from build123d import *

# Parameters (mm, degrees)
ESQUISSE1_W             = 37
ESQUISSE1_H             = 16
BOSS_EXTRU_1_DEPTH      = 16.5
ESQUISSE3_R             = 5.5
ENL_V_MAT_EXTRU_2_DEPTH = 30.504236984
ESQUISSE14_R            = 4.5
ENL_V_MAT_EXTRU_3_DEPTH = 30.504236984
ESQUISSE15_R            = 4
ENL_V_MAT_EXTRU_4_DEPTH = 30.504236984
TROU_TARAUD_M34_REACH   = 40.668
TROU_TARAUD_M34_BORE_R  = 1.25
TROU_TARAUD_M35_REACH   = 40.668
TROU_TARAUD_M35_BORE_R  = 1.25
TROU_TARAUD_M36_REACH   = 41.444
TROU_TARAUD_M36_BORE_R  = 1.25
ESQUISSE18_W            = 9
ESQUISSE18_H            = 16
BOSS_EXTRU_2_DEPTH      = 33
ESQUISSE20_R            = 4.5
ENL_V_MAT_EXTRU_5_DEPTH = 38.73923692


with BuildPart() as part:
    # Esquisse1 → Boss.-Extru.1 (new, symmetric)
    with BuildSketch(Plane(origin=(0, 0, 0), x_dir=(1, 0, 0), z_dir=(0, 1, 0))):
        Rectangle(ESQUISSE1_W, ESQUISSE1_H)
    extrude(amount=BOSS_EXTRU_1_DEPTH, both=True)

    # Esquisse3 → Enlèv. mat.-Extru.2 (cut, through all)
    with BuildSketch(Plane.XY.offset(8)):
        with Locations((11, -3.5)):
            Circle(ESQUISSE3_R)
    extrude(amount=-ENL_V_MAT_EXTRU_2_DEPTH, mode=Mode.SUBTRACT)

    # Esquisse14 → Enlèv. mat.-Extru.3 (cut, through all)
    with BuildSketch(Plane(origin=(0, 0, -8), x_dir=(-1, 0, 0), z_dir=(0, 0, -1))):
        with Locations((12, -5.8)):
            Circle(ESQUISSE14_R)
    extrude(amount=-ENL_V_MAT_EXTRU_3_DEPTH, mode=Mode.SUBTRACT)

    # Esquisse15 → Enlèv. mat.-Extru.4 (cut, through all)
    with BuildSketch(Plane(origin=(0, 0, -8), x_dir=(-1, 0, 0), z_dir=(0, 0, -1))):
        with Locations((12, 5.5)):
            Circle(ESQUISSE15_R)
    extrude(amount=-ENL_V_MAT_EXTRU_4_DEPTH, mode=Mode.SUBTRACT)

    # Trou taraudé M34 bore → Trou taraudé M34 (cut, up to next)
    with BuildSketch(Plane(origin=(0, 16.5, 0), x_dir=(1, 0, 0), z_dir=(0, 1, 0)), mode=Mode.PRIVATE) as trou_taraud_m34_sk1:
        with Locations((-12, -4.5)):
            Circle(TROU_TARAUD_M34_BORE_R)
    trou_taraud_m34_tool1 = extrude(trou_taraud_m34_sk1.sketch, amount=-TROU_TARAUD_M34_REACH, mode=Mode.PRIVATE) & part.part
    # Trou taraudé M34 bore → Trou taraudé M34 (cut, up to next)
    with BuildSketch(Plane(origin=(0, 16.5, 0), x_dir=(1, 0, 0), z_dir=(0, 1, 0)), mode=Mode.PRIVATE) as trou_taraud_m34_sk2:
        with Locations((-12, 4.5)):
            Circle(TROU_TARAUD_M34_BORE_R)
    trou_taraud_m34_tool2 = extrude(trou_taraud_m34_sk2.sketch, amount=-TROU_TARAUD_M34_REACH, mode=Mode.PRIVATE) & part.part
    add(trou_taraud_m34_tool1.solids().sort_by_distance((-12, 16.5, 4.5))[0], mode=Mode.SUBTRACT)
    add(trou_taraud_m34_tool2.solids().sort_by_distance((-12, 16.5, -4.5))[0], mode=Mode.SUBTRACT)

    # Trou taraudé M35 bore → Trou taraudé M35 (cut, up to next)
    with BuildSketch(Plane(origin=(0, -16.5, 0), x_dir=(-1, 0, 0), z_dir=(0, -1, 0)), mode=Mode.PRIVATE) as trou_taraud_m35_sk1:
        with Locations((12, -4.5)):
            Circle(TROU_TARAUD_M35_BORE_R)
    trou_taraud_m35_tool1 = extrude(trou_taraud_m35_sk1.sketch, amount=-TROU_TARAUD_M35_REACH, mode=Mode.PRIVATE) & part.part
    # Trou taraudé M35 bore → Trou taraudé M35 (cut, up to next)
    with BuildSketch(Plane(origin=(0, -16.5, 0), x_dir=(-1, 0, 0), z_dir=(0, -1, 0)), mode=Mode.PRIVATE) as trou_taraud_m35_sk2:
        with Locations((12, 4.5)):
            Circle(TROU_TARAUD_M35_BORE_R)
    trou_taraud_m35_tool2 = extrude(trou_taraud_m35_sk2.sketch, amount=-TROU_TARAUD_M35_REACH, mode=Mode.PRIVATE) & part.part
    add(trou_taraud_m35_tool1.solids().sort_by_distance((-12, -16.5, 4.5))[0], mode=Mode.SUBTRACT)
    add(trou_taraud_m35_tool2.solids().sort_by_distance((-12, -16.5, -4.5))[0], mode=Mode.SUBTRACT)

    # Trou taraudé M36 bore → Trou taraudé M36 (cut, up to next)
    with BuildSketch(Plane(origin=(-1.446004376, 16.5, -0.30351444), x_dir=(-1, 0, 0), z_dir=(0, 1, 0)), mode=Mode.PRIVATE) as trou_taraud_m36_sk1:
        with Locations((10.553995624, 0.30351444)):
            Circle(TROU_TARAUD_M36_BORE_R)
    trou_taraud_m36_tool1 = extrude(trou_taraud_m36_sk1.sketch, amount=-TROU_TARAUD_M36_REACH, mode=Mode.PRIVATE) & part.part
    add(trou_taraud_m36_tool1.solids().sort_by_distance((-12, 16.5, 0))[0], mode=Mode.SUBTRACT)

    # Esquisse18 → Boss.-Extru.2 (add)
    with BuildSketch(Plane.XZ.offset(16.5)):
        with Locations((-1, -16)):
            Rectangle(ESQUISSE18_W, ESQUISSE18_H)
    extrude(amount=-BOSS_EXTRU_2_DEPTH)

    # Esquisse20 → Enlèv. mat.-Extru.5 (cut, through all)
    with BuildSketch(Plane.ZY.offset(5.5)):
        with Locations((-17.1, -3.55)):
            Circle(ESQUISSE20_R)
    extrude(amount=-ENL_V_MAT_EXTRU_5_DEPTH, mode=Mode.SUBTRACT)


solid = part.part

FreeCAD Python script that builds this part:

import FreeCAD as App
import Part
import Sketcher
Q = App.Units.Quantity

doc = App.newDocument("Part")
params = doc.addObject("Spreadsheet::Sheet", "Params")
for row, (alias, value) in enumerate([
    ("sketch1_width", "37 mm"),
    ("sketch1_height", "16 mm"),
    ("pad1_length", "33 mm"),
    ("sketch2_diameter", "11 mm"),
    ("sketch3_diameter", "9 mm"),
    ("sketch4_diameter", "8 mm"),
    ("sketch5_diameter", "2.5 mm"),
    ("sketch6_diameter", "2.5 mm"),
    ("sketch7_diameter", "2.5 mm"),
    ("sketch8_diameter", "2.5 mm"),
    ("pocket7_length", "6.377096 mm"),
    ("sketch9_diameter", "2.5 mm"),
    ("sketch10_width", "9 mm"),
    ("sketch10_height", "16 mm"),
    ("pad2_length", "33 mm"),
    ("sketch11_diameter", "9 mm"),
], start=1):
    params.set(f"A{row}", alias)
    params.set(f"B{row}", "=" + value)
    params.setAlias(f"B{row}", alias)

body = doc.addObject("PartDesign::Body", "Body")

sketch1 = body.newObject("Sketcher::SketchObject", "Sketch")
sketch1.AttachmentSupport = (doc.getObject("XZ_Plane"), [""])
sketch1.MapMode = "FlatFace"
sketch1.addGeometry([
    Part.LineSegment(App.Vector(-18, -8, 0), App.Vector(-18, 8, 0)),
    Part.LineSegment(App.Vector(-18, 8, 0), App.Vector(18, 8, 0)),
    Part.LineSegment(App.Vector(18, 8, 0), App.Vector(18, -8, 0)),
    Part.LineSegment(App.Vector(18, -8, 0), App.Vector(-18, -8, 0)),
], False)
sketch1.addConstraint([
    Sketcher.Constraint("Coincident", 0, 2, 1, 1),
    Sketcher.Constraint("Coincident", 1, 2, 2, 1),
    Sketcher.Constraint("Coincident", 2, 2, 3, 1),
    Sketcher.Constraint("Coincident", 3, 2, 0, 1),
    Sketcher.Constraint("Vertical", 0),
    Sketcher.Constraint("Horizontal", 1),
    Sketcher.Constraint("Vertical", 2),
    Sketcher.Constraint("Horizontal", 3),
    Sketcher.Constraint("Symmetric", 0, 2, 2, 2, -1, 1),
    Sketcher.Constraint("DistanceX", 1, 1, 1, 2, Q("37 mm")),
    Sketcher.Constraint("DistanceY", 0, 1, 0, 2, Q("16 mm")),
])
sketch1.setExpression("Constraints[9]", "Params.sketch1_width")
sketch1.setExpression("Constraints[10]", "Params.sketch1_height")
pad1 = body.newObject("PartDesign::Pad", "Pad")
pad1.Profile = sketch1
pad1.setExpression("Length", "Params.pad1_length")
pad1.Midplane = True

sketch2 = body.newObject("Sketcher::SketchObject", "Sketch001")
sketch2.AttachmentSupport = (doc.getObject("XY_Plane"), [""])
sketch2.MapMode = "FlatFace"
sketch2.AttachmentOffset = App.Placement(App.Vector(0, 0, 8), App.Rotation())
sketch2.addGeometry(Part.Circle(App.Vector(11, -4, 0), App.Vector(0, 0, 1), 6), False)
sketch2.addConstraint([
    Sketcher.Constraint("Diameter", 0, Q("11 mm")),
    Sketcher.Constraint("DistanceX", -1, 1, 0, 3, Q("11 mm")),
    Sketcher.Constraint("DistanceY", 0, 3, -1, 1, Q("3.5 mm")),
])
sketch2.setExpression("Constraints[0]", "Params.sketch2_diameter")
pocket1 = body.newObject("PartDesign::Pocket", "Pocket")
pocket1.Profile = sketch2
pocket1.Type = "ThroughAll"

sketch3 = body.newObject("Sketcher::SketchObject", "Sketch002")
sketch3.AttachmentSupport = (doc.getObject("XY_Plane"), [""])
sketch3.MapMode = "FlatFace"
sketch3.AttachmentOffset = App.Placement(App.Vector(0, 0, -8), App.Rotation())
sketch3.addGeometry(Part.Circle(App.Vector(-12, -5.8, 0), App.Vector(0, 0, 1), 4.5), False)
sketch3.addConstraint([
    Sketcher.Constraint("Diameter", 0, Q("9 mm")),
    Sketcher.Constraint("DistanceX", 0, 3, -1, 1, Q("12 mm")),
    Sketcher.Constraint("DistanceY", 0, 3, -1, 1, Q("5.8 mm")),
])
sketch3.setExpression("Constraints[0]", "Params.sketch3_diameter")
pocket2 = body.newObject("PartDesign::Pocket", "Pocket001")
pocket2.Profile = sketch3
pocket2.Type = "ThroughAll"
pocket2.Reversed = True

sketch4 = body.newObject("Sketcher::SketchObject", "Sketch003")
sketch4.AttachmentSupport = (doc.getObject("XY_Plane"), [""])
sketch4.MapMode = "FlatFace"
sketch4.AttachmentOffset = App.Placement(App.Vector(0, 0, -8), App.Rotation())
sketch4.addGeometry(Part.Circle(App.Vector(-12, 5.5, 0), App.Vector(0, 0, 1), 4), False)
sketch4.addConstraint([
    Sketcher.Constraint("Diameter", 0, Q("8 mm")),
    Sketcher.Constraint("DistanceX", 0, 3, -1, 1, Q("12 mm")),
    Sketcher.Constraint("DistanceY", -1, 1, 0, 3, Q("5.5 mm")),
])
sketch4.setExpression("Constraints[0]", "Params.sketch4_diameter")
pocket3 = body.newObject("PartDesign::Pocket", "Pocket002")
pocket3.Profile = sketch4
pocket3.Type = "ThroughAll"
pocket3.Reversed = True

sketch5 = body.newObject("Sketcher::SketchObject", "Sketch004")
sketch5.AttachmentSupport = (doc.getObject("XZ_Plane"), [""])
sketch5.MapMode = "FlatFace"
sketch5.AttachmentOffset = App.Placement(App.Vector(0, 0, -16.5), App.Rotation())
sketch5.addGeometry(Part.Circle(App.Vector(-12, 4.5, 0), App.Vector(0, 0, 1), 1.2), False)
sketch5.addConstraint([
    Sketcher.Constraint("Diameter", 0, Q("2.5 mm")),
    Sketcher.Constraint("DistanceX", 0, 3, -1, 1, Q("12 mm")),
    Sketcher.Constraint("DistanceY", -1, 1, 0, 3, Q("4.5 mm")),
])
sketch5.setExpression("Constraints[0]", "Params.sketch5_diameter")
pocket4 = body.newObject("PartDesign::Pocket", "Pocket003")
pocket4.Profile = sketch5
pocket4.Type = "UpToFirst"
pocket4.Reversed = True

sketch6 = body.newObject("Sketcher::SketchObject", "Sketch005")
sketch6.AttachmentSupport = (doc.getObject("XZ_Plane"), [""])
sketch6.MapMode = "FlatFace"
sketch6.AttachmentOffset = App.Placement(App.Vector(0, 0, -16.5), App.Rotation())
sketch6.addGeometry(Part.Circle(App.Vector(-12, -4.5, 0), App.Vector(0, 0, 1), 1.2), False)
sketch6.addConstraint([
    Sketcher.Constraint("Diameter", 0, Q("2.5 mm")),
    Sketcher.Constraint("DistanceX", 0, 3, -1, 1, Q("12 mm")),
    Sketcher.Constraint("DistanceY", 0, 3, -1, 1, Q("4.5 mm")),
])
sketch6.setExpression("Constraints[0]", "Params.sketch6_diameter")
pocket5 = body.newObject("PartDesign::Pocket", "Pocket004")
pocket5.Profile = sketch6
pocket5.Type = "UpToFirst"
pocket5.Reversed = True

sketch7 = body.newObject("Sketcher::SketchObject", "Sketch006")
sketch7.AttachmentSupport = (doc.getObject("XZ_Plane"), [""])
sketch7.MapMode = "FlatFace"
sketch7.AttachmentOffset = App.Placement(App.Vector(0, 0, 16.5), App.Rotation())
sketch7.addGeometry(Part.Circle(App.Vector(-12, 4.5, 0), App.Vector(0, 0, 1), 1.2), False)
sketch7.addConstraint([
    Sketcher.Constraint("Diameter", 0, Q("2.5 mm")),
    Sketcher.Constraint("DistanceX", 0, 3, -1, 1, Q("12 mm")),
    Sketcher.Constraint("DistanceY", -1, 1, 0, 3, Q("4.5 mm")),
])
sketch7.setExpression("Constraints[0]", "Params.sketch7_diameter")
pocket6 = body.newObject("PartDesign::Pocket", "Pocket005")
pocket6.Profile = sketch7
pocket6.Type = "UpToFirst"

sketch8 = body.newObject("Sketcher::SketchObject", "Sketch007")
sketch8.AttachmentSupport = (doc.getObject("XZ_Plane"), [""])
sketch8.MapMode = "FlatFace"
sketch8.AttachmentOffset = App.Placement(App.Vector(0, 0, 16.5), App.Rotation())
sketch8.addGeometry(Part.Circle(App.Vector(-12, -4.5, 0), App.Vector(0, 0, 1), 1.2), False)
sketch8.addConstraint([
    Sketcher.Constraint("Diameter", 0, Q("2.5 mm")),
    Sketcher.Constraint("DistanceX", 0, 3, -1, 1, Q("12 mm")),
    Sketcher.Constraint("DistanceY", 0, 3, -1, 1, Q("4.5 mm")),
])
sketch8.setExpression("Constraints[0]", "Params.sketch8_diameter")
pocket7 = body.newObject("PartDesign::Pocket", "Pocket006")
pocket7.Profile = sketch8
pocket7.setExpression("Length", "Params.pocket7_length")

sketch9 = body.newObject("Sketcher::SketchObject", "Sketch008")
sketch9.AttachmentSupport = (doc.getObject("XZ_Plane"), [""])
sketch9.MapMode = "FlatFace"
sketch9.AttachmentOffset = App.Placement(App.Vector(0, 0, -16.5), App.Rotation())
sketch9.addGeometry(Part.Circle(App.Vector(-12, 0, 0), App.Vector(0, 0, 1), 1.2), False)
sketch9.addConstraint([
    Sketcher.Constraint("PointOnObject", 0, 3, -1),
    Sketcher.Constraint("Diameter", 0, Q("2.5 mm")),
    Sketcher.Constraint("DistanceX", 0, 3, -1, 1, Q("12 mm")),
])
sketch9.setExpression("Constraints[1]", "Params.sketch9_diameter")
pocket8 = body.newObject("PartDesign::Pocket", "Pocket007")
pocket8.Profile = sketch9
pocket8.Type = "UpToFirst"
pocket8.Reversed = True

sketch10 = body.newObject("Sketcher::SketchObject", "Sketch009")
sketch10.AttachmentSupport = (doc.getObject("XZ_Plane"), [""])
sketch10.MapMode = "FlatFace"
sketch10.AttachmentOffset = App.Placement(App.Vector(0, 0, 16.5), App.Rotation())
sketch10.addGeometry([
    Part.LineSegment(App.Vector(-6, -8, 0), App.Vector(-6, -24, 0)),
    Part.LineSegment(App.Vector(-6, -24, 0), App.Vector(4, -24, 0)),
    Part.LineSegment(App.Vector(4, -24, 0), App.Vector(4, -8, 0)),
    Part.LineSegment(App.Vector(4, -8, 0), App.Vector(-6, -8, 0)),
], False)
sketch10.addConstraint([
    Sketcher.Constraint("Coincident", 0, 2, 1, 1),
    Sketcher.Constraint("Coincident", 1, 2, 2, 1),
    Sketcher.Constraint("Coincident", 2, 2, 3, 1),
    Sketcher.Constraint("Coincident", 3, 2, 0, 1),
    Sketcher.Constraint("Vertical", 0),
    Sketcher.Constraint("Horizontal", 1),
    Sketcher.Constraint("Vertical", 2),
    Sketcher.Constraint("Horizontal", 3),
    Sketcher.Constraint("DistanceX", 1, 1, 1, 2, Q("9 mm")),
    Sketcher.Constraint("DistanceY", 0, 2, 0, 1, Q("16 mm")),
    Sketcher.Constraint("DistanceY", 0, 2, -1, 1, Q("24 mm")),
    Sketcher.Constraint("DistanceX", 0, 2, -1, 1, Q("5.5 mm")),
])
sketch10.setExpression("Constraints[8]", "Params.sketch10_width")
sketch10.setExpression("Constraints[9]", "Params.sketch10_height")
pad2 = body.newObject("PartDesign::Pad", "Pad001")
pad2.Profile = sketch10
pad2.setExpression("Length", "Params.pad2_length")
pad2.Reversed = True

sketch11 = body.newObject("Sketcher::SketchObject", "Sketch010")
sketch11.AttachmentSupport = (doc.getObject("YZ_Plane"), [""])
sketch11.MapMode = "FlatFace"
sketch11.AttachmentOffset = App.Placement(App.Vector(0, 0, -5.5), App.Rotation())
sketch11.addGeometry(Part.Circle(App.Vector(-3.5, -17.1, 0), App.Vector(0, 0, 1), 4.5), False)
sketch11.addConstraint([
    Sketcher.Constraint("Diameter", 0, Q("9 mm")),
    Sketcher.Constraint("DistanceY", 0, 3, -1, 1, Q("17.1 mm")),
    Sketcher.Constraint("DistanceX", 0, 3, -1, 1, Q("3.55 mm")),
])
sketch11.setExpression("Constraints[0]", "Params.sketch11_diameter")
pocket9 = body.newObject("PartDesign::Pocket", "Pocket008")
pocket9.Profile = sketch11
pocket9.Type = "ThroughAll"
pocket9.Reversed = True

doc.recompute()
